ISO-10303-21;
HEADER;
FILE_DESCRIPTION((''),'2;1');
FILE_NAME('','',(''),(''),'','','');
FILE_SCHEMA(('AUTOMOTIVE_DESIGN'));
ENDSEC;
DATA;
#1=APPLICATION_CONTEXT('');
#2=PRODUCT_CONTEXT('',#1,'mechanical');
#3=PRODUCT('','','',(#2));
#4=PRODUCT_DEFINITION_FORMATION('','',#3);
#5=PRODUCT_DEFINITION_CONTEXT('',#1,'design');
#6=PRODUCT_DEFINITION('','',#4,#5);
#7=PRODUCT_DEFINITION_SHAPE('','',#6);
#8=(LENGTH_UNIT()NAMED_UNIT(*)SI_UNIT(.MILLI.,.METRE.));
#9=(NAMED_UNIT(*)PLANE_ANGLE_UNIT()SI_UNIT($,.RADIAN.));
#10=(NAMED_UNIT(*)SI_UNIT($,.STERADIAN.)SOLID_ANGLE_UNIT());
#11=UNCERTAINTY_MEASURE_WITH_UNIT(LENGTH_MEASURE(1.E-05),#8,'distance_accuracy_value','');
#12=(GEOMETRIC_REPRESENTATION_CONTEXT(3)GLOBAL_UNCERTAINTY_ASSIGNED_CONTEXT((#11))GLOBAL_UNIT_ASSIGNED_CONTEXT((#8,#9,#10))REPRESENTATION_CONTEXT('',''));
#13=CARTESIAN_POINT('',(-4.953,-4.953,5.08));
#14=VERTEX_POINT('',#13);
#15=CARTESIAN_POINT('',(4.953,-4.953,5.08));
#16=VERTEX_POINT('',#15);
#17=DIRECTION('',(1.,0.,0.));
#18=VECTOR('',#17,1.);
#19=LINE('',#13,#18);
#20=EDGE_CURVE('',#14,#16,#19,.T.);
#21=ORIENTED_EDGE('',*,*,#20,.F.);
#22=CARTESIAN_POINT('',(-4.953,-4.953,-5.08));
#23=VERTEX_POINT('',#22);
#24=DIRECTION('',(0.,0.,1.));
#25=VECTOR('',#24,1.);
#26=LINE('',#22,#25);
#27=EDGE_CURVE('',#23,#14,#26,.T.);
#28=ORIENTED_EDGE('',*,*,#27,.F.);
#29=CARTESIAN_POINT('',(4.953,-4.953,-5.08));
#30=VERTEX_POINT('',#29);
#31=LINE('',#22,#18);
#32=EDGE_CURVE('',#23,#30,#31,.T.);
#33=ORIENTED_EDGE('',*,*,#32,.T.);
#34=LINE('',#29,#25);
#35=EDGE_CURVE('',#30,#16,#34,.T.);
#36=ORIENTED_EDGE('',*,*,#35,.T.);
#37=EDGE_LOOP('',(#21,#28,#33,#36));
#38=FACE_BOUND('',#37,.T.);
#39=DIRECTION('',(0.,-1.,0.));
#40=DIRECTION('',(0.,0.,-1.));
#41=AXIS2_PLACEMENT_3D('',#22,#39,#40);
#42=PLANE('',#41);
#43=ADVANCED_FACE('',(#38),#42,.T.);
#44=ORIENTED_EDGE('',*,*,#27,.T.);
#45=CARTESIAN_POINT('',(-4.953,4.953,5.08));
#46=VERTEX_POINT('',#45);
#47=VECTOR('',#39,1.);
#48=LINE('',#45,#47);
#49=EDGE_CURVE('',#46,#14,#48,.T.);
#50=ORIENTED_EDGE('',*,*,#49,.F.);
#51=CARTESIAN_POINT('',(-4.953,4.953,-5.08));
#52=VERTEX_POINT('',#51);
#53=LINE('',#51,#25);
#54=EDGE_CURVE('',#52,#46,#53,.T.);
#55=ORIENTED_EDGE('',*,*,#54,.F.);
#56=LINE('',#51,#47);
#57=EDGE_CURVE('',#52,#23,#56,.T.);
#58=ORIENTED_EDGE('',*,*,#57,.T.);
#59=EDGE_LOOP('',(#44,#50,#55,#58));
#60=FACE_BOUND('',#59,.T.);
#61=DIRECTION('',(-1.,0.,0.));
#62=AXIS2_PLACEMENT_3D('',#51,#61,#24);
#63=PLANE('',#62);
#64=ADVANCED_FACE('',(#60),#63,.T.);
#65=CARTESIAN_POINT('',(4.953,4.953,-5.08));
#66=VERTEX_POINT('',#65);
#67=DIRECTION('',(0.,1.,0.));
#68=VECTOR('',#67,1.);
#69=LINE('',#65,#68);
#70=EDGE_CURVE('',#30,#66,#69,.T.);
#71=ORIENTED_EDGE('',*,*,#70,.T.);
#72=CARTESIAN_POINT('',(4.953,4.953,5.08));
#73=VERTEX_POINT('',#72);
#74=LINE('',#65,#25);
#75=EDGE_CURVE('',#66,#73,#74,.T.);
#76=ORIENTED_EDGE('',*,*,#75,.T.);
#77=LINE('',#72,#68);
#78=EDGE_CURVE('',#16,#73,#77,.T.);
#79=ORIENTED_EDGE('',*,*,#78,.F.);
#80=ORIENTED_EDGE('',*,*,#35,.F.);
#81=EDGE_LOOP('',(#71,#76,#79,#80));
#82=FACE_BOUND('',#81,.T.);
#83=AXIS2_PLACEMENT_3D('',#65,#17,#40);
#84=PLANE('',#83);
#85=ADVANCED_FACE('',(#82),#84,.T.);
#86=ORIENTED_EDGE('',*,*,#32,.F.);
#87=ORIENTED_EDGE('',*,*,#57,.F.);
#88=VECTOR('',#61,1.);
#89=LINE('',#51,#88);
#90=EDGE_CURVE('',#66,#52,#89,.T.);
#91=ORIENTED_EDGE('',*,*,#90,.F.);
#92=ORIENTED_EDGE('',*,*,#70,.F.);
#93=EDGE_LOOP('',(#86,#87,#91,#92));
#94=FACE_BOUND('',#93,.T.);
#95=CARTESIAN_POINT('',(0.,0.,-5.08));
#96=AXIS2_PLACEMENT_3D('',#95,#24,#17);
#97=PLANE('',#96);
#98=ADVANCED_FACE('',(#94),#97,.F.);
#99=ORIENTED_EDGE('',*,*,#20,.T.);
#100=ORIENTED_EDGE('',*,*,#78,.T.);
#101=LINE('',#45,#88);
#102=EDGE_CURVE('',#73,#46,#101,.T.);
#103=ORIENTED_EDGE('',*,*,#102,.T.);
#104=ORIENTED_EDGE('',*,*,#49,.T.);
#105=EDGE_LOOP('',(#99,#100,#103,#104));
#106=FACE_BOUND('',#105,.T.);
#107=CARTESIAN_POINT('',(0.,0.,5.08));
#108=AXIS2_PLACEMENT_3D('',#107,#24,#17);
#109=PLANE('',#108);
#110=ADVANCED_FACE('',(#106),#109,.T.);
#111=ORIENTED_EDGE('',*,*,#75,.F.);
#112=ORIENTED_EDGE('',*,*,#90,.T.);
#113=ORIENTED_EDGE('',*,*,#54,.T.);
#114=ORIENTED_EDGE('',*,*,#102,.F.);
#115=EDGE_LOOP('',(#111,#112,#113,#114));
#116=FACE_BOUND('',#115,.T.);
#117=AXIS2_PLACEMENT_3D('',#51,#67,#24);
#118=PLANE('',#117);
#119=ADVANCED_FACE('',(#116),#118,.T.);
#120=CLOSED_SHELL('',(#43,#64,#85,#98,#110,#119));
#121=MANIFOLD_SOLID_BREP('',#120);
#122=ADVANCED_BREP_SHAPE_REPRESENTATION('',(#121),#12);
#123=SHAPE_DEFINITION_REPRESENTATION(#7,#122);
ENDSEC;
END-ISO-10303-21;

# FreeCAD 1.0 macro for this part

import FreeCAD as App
import Part
import Sketcher
Q = App.Units.Quantity


def add_polygon(sketch, points):
    """Adds a closed chain of lines whose ends are joined by coincident constraints."""
    first, n = sketch.GeometryCount, len(points)
    for a, b in zip(points, points[1:] + points[:1]):
        sketch.addGeometry(Part.LineSegment(App.Vector(*a, 0), App.Vector(*b, 0)), False)
    for i in range(n):
        sketch.addConstraint(Sketcher.Constraint("Coincident", first + i, 2, first + (i + 1) % n, 1))

doc = App.newDocument("Part")
params = doc.addObject("Spreadsheet::Sheet", "Params")
for row, (alias, value) in enumerate([
    ("sketch1_width", "0.39 in"),
    ("pad1_length", "0.2 in"),
    ("pad1_length2", "0.2 in"),
], start=1):
    params.set(f"A{row}", alias)
    params.set(f"B{row}", "=" + value)
    params.setAlias(f"B{row}", alias)

body = doc.addObject("PartDesign::Body", "Body")

# Sketch on XY plane
sketch1 = doc.addObject("Sketcher::SketchObject", "Sketch")
body.addObject(sketch1)
sketch1.AttachmentSupport = (doc.XY_Plane, [""])
sketch1.MapMode = "FlatFace"
add_polygon(sketch1, [(-5, 5), (-5, -5), (5, -5), (5, 5)])  # lines 0-3
sketch1.addConstraint(Sketcher.Constraint("Vertical", 0))
sketch1.addConstraint(Sketcher.Constraint("Horizontal", 1))
sketch1.addConstraint(Sketcher.Constraint("Vertical", 2))
sketch1.addConstraint(Sketcher.Constraint("Horizontal", 3))
sketch1.addConstraint(Sketcher.Constraint("Symmetric", 0, 2, 2, 2, -1, 1))
sketch1.addConstraint(Sketcher.Constraint("Equal", 3, 0))
sketch1.addConstraint(Sketcher.Constraint("DistanceX", 1, 1, 1, 2, Q("0.39 in")))
sketch1.setExpression("Constraints[10]", "Params.sketch1_width")
pad1 = doc.addObject("PartDesign::Pad", "Pad")
body.addObject(pad1)
pad1.Profile = sketch1
pad1.Type = "TwoLengths"
pad1.setExpression("Length", "Params.pad1_length")
pad1.setExpression("Length2", "Params.pad1_length2")

doc.recompute()
